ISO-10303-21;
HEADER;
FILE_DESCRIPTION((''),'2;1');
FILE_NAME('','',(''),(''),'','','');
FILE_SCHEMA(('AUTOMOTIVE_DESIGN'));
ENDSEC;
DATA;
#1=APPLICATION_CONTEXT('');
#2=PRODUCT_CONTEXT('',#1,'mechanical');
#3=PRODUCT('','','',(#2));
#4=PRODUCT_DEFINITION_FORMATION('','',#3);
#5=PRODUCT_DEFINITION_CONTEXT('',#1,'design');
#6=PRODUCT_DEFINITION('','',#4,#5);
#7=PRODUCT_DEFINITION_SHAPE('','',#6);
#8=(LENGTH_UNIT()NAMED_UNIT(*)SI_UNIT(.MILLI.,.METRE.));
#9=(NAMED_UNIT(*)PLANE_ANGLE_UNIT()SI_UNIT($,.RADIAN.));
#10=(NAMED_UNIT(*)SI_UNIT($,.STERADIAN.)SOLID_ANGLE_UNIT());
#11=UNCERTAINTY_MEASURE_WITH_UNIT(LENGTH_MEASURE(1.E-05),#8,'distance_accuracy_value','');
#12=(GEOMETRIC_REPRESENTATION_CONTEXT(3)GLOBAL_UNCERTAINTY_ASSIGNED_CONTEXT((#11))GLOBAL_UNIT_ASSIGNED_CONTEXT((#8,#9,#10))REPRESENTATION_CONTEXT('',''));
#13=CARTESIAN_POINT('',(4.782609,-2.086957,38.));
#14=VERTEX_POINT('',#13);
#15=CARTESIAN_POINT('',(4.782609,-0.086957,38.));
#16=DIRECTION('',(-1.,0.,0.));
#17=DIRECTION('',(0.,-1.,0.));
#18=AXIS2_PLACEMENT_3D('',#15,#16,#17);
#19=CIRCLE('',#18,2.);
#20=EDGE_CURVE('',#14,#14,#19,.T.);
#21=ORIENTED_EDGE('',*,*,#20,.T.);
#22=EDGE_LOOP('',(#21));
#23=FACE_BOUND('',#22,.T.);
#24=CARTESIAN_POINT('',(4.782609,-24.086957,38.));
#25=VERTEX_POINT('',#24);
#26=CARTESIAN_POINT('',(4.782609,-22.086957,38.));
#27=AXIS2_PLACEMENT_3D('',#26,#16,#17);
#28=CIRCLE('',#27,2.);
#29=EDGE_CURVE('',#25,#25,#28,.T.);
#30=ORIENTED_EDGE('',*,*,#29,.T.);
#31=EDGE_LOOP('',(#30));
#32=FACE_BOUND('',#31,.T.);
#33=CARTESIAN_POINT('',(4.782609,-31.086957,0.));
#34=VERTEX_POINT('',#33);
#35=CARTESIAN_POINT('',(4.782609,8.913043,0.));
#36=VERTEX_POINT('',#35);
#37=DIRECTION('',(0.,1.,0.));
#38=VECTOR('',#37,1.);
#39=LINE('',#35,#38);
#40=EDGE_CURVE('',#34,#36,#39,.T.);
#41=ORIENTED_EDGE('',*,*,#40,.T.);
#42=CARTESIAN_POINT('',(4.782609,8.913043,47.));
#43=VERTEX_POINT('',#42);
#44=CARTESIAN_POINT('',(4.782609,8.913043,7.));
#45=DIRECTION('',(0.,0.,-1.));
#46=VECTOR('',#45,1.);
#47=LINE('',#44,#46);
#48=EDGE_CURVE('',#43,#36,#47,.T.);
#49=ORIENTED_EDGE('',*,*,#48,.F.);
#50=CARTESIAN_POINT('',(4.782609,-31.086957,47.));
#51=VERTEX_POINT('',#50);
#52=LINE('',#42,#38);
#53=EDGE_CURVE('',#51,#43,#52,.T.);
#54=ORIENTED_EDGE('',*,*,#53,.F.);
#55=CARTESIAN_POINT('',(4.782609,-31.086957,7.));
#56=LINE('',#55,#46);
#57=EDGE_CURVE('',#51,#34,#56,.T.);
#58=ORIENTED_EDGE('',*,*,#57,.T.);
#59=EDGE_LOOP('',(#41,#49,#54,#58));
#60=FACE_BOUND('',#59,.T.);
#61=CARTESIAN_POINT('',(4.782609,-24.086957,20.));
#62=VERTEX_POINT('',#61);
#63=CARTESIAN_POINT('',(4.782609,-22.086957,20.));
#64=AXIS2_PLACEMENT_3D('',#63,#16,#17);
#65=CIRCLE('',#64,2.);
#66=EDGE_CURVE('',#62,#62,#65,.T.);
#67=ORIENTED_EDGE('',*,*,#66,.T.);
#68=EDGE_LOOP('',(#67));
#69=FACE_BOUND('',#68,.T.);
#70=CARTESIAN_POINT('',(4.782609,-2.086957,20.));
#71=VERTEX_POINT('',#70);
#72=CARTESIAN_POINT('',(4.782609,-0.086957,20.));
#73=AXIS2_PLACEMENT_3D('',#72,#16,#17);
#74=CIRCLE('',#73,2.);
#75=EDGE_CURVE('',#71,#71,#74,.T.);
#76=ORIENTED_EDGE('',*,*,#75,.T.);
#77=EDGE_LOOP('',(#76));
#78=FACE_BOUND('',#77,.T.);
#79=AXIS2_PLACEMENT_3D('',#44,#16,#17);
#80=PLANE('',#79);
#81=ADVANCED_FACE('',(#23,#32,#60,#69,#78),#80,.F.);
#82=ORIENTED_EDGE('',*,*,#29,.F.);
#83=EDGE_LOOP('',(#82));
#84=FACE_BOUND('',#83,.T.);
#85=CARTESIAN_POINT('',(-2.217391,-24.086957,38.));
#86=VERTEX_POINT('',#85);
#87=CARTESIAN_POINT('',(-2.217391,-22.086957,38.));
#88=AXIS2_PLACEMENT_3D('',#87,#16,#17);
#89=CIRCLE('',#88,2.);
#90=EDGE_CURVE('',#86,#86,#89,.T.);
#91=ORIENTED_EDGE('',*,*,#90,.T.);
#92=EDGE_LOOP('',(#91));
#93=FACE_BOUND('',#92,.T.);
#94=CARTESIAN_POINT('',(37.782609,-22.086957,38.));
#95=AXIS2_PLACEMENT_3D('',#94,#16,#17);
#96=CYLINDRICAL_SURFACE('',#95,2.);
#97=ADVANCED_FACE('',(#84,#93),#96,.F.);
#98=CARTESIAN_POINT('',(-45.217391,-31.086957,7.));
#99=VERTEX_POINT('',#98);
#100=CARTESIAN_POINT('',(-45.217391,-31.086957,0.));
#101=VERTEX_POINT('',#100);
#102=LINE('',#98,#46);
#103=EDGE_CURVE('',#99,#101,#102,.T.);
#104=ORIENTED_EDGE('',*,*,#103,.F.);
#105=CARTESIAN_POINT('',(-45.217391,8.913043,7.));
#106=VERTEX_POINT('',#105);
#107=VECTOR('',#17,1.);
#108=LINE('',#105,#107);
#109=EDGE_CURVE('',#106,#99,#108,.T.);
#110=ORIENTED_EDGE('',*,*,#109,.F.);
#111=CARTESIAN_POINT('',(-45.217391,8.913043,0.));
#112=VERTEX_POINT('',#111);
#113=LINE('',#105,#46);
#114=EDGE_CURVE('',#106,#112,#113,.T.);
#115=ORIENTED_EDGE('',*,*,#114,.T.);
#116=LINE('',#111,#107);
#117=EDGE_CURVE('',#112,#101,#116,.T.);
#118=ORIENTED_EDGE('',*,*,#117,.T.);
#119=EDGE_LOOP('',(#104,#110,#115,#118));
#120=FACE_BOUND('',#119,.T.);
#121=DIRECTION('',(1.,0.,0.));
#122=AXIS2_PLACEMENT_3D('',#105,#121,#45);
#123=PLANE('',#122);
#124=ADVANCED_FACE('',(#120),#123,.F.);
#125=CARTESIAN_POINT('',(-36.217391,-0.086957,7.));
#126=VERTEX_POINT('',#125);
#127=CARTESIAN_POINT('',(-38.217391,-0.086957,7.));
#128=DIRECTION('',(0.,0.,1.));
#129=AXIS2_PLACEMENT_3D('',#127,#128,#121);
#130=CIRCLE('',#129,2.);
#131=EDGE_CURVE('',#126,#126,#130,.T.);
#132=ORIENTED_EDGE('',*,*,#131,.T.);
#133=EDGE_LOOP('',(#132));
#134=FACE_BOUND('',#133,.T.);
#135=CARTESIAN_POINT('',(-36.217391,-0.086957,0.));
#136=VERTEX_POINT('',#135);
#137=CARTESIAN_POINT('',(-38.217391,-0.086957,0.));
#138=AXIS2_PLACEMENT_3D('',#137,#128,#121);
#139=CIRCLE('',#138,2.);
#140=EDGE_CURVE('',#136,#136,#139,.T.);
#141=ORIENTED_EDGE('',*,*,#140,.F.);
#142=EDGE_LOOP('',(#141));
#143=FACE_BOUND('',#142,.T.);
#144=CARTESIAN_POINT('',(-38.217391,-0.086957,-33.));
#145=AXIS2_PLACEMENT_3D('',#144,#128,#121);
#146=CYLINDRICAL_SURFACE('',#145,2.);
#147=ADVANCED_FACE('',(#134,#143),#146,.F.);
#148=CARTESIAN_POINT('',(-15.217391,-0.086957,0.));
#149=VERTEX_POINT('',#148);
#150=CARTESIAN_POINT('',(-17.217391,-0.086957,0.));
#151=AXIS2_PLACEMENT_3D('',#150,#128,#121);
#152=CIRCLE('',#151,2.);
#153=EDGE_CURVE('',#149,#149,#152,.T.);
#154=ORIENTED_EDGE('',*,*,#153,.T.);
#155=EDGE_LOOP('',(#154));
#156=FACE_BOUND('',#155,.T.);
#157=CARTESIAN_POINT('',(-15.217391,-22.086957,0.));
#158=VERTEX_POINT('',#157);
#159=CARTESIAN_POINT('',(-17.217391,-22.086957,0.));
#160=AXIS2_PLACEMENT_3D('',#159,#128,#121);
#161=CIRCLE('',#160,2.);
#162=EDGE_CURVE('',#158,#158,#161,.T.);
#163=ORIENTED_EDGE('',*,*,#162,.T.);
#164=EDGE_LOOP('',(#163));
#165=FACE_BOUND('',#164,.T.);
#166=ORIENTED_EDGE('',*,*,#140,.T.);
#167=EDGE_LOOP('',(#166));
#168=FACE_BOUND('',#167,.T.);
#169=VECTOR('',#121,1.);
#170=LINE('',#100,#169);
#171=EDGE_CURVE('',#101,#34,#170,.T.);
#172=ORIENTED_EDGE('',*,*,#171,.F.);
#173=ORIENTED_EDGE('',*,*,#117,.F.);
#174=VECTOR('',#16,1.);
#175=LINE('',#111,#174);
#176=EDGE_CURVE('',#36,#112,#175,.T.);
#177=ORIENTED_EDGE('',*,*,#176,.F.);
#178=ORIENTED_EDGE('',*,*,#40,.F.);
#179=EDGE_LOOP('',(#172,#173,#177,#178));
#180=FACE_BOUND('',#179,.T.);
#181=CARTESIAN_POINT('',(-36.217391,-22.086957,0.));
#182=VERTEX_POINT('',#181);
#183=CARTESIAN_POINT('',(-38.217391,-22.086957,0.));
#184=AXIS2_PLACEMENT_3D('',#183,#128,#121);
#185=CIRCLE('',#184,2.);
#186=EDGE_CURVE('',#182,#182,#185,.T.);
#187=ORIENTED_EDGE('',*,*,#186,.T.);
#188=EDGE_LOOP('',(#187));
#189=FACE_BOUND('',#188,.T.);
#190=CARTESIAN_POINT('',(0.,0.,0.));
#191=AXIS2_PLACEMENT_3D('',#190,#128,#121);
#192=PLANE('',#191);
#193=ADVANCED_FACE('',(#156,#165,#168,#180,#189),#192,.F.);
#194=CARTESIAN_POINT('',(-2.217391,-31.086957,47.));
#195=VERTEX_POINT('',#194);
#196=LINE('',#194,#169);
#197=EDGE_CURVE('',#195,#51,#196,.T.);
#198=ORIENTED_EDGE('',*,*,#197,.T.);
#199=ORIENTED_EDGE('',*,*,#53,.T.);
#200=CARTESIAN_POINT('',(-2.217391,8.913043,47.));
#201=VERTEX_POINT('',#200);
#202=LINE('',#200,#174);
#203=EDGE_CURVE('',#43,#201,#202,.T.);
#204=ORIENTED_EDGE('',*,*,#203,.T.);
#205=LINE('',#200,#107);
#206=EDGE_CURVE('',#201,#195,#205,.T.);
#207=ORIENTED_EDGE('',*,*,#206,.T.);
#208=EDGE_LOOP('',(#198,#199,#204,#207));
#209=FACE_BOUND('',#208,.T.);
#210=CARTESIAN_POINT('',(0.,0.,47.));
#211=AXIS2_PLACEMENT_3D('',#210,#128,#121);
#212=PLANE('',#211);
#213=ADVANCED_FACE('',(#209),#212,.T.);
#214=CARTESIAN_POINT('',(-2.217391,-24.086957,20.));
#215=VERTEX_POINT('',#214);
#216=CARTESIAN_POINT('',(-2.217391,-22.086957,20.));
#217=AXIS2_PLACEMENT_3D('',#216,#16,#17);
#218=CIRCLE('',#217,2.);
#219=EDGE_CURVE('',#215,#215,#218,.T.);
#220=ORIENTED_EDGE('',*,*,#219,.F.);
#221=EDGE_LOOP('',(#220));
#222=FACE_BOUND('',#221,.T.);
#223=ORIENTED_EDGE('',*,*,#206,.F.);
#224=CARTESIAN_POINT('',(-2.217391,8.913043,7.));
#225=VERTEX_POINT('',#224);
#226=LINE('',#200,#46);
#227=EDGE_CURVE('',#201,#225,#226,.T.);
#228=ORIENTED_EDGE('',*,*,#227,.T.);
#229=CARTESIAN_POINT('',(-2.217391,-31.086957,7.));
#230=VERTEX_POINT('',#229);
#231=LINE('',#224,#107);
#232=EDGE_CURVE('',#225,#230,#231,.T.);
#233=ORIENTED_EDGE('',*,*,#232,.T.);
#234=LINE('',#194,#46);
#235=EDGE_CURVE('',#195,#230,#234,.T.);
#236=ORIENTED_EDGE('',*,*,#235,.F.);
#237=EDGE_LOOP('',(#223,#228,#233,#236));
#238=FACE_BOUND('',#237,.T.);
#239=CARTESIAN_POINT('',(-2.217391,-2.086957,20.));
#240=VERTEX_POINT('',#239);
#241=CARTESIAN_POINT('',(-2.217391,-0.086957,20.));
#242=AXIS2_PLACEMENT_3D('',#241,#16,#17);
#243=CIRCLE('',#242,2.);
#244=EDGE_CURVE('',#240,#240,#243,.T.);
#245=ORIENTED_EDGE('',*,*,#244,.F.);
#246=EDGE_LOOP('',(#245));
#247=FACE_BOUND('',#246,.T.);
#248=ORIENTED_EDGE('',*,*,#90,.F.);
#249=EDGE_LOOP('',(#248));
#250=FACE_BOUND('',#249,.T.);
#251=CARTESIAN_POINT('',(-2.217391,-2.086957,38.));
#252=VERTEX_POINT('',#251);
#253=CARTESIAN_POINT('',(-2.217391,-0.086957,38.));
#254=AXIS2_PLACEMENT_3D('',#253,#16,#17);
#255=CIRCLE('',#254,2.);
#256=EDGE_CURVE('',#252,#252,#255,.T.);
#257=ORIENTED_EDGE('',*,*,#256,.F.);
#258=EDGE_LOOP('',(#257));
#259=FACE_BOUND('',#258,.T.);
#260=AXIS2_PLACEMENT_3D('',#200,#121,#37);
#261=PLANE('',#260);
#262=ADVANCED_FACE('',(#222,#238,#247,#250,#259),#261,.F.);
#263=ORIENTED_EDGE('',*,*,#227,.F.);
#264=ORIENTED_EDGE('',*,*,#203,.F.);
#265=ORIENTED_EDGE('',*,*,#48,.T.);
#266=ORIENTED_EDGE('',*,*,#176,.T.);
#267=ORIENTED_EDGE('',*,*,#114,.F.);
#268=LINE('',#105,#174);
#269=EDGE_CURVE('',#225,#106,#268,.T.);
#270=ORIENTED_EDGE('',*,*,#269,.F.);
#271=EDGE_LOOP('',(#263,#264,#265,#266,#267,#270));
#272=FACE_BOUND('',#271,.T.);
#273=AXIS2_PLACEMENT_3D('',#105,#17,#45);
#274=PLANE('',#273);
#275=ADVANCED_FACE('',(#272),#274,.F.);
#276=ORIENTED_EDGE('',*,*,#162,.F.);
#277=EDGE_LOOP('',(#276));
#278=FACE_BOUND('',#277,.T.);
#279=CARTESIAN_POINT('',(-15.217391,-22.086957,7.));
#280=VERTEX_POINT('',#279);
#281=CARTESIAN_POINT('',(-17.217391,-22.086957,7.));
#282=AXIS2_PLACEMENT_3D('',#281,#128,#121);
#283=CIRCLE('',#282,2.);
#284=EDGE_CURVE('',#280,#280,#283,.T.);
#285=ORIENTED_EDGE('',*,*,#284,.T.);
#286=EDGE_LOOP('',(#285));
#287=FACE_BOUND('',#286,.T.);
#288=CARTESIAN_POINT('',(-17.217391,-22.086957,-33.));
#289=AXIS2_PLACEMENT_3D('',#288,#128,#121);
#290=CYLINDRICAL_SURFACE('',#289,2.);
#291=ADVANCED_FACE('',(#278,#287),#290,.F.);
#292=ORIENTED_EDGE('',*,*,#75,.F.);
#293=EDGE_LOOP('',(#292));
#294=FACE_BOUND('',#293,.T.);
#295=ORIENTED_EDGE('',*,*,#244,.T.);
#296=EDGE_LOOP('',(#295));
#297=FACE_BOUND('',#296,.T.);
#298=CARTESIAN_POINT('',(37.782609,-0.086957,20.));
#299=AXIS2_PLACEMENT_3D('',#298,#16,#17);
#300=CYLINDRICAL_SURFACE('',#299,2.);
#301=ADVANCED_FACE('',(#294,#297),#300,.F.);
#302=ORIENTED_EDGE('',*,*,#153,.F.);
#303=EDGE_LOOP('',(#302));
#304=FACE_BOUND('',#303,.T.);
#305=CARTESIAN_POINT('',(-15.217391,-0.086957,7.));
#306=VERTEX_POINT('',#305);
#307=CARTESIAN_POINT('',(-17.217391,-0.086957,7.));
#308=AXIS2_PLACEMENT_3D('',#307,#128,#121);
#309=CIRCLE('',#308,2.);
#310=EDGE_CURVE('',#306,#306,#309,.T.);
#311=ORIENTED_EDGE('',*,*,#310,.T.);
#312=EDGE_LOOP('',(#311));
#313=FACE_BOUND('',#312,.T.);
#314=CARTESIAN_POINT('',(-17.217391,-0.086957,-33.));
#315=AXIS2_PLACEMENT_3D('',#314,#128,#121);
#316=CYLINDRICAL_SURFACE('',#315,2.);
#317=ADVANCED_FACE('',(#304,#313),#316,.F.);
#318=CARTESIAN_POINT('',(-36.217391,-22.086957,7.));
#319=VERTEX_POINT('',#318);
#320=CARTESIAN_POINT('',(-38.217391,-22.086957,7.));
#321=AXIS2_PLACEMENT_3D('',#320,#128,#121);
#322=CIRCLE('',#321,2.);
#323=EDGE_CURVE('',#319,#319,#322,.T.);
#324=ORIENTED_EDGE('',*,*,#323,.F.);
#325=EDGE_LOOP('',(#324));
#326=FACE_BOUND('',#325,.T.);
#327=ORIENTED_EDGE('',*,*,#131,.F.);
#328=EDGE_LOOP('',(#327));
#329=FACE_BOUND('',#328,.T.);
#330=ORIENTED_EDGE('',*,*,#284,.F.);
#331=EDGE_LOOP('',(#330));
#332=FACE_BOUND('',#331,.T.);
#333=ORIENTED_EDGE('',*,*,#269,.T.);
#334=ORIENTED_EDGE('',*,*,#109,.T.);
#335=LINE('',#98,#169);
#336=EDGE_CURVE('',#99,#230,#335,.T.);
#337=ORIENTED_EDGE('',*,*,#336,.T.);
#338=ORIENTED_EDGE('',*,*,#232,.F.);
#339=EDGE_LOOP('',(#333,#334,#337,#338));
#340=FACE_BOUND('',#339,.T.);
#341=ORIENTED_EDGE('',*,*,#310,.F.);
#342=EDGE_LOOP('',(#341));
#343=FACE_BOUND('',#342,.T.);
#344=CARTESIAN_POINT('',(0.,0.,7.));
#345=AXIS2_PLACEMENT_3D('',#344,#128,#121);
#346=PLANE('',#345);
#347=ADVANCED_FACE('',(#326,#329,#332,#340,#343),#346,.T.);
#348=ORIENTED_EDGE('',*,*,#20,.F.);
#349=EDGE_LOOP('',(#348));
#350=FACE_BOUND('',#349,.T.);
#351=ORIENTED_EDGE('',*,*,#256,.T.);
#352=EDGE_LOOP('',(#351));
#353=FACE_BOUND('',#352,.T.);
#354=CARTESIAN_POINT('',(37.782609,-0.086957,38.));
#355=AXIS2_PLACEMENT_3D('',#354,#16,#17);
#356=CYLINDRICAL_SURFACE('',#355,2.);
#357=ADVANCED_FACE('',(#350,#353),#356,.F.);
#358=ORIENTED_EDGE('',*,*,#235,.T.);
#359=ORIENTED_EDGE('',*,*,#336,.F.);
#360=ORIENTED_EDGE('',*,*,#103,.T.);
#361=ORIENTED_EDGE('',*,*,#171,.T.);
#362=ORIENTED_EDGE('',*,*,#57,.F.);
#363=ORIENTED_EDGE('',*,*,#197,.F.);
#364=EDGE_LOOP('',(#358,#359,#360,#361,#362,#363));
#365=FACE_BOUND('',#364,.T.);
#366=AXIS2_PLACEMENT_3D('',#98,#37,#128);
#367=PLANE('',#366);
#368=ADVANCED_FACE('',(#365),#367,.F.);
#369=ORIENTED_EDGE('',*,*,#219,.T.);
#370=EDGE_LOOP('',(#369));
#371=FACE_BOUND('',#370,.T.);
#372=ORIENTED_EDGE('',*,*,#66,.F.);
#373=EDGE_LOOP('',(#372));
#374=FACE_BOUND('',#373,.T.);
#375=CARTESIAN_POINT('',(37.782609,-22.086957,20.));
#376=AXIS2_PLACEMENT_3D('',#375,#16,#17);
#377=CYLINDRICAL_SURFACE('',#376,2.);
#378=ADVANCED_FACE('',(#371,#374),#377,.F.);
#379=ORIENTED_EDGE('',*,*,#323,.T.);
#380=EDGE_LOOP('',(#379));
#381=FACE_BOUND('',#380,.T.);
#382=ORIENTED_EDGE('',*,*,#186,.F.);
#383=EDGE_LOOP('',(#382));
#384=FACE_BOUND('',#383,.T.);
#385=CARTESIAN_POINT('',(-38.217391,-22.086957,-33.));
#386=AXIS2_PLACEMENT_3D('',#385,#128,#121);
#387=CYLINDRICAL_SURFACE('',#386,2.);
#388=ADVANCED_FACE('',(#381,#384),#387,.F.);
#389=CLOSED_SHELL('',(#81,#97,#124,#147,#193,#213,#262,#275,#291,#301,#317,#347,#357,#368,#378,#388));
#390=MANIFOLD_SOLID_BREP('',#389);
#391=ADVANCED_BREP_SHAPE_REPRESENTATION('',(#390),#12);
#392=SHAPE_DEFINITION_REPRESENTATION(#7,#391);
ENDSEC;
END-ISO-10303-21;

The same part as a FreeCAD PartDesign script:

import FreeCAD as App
import Part
import Sketcher

V = App.Vector


def add_polygon(sketch, points):
    """Adds a closed chain of lines whose ends are joined by coincident constraints."""
    first, n = sketch.GeometryCount, len(points)
    for a, b in zip(points, points[1:] + points[:1]):
        sketch.addGeometry(Part.LineSegment(App.Vector(*a, 0), App.Vector(*b, 0)), False)
    for i in range(n):
        sketch.addConstraint(Sketcher.Constraint("Coincident", first + i, 2, first + (i + 1) % n, 1))

doc = App.newDocument("Part")
body = doc.addObject("PartDesign::Body", "Body")

# Sketch on XY plane
sketch1 = doc.addObject("Sketcher::SketchObject", "Sketch")
body.addObject(sketch1)
sketch1.AttachmentSupport = (doc.XY_Plane, [""])
sketch1.MapMode = "FlatFace"
add_polygon(sketch1, [(-45.217391, 8.913043), (-45.217391, -31.086957), (4.782609, -31.086957), (4.782609, 8.913043)])  # lines 0-3
sketch1.addConstraint(Sketcher.Constraint("Vertical", 0))
sketch1.addConstraint(Sketcher.Constraint("Horizontal", 1))
sketch1.addConstraint(Sketcher.Constraint("Vertical", 2))
sketch1.addConstraint(Sketcher.Constraint("Horizontal", 3))
sketch1.addConstraint(Sketcher.Constraint("DistanceX", 1, 1, 1, 2, 50.0))
sketch1.addConstraint(Sketcher.Constraint("DistanceY", 0, 2, 0, 1, 40.0))
sketch1.addConstraint(Sketcher.Constraint("DistanceX", 0, 2, -1, 1, 45.217391))
sketch1.addConstraint(Sketcher.Constraint("DistanceY", 0, 2, -1, 1, 31.086957))
pad1 = doc.addObject("PartDesign::Pad", "Pad")
body.addObject(pad1)
pad1.Profile = sketch1
pad1.Length = 7

# Sketch on XY plane
sketch2 = doc.addObject("Sketcher::SketchObject", "Sketch001")
body.addObject(sketch2)
sketch2.AttachmentSupport = (doc.XY_Plane, [""])
sketch2.MapMode = "FlatFace"
sketch2.AttachmentOffset = App.Placement(V(0, 0, 7), App.Rotation())
add_polygon(sketch2, [(-2.217391, 8.913043), (-2.217391, -31.086957), (4.782609, -31.086957), (4.782609, 8.913043)])  # lines 0-3
sketch2.addConstraint(Sketcher.Constraint("Vertical", 0))
sketch2.addConstraint(Sketcher.Constraint("Horizontal", 1))
sketch2.addConstraint(Sketcher.Constraint("Vertical", 2))
sketch2.addConstraint(Sketcher.Constraint("Horizontal", 3))
sketch2.addConstraint(Sketcher.Constraint("DistanceX", 1, 1, 1, 2, 7.0))
sketch2.addConstraint(Sketcher.Constraint("DistanceY", 0, 2, 0, 1, 40.0))
sketch2.addConstraint(Sketcher.Constraint("DistanceX", 0, 2, -1, 1, 2.217391))
sketch2.addConstraint(Sketcher.Constraint("DistanceY", 0, 2, -1, 1, 31.086957))
pad2 = doc.addObject("PartDesign::Pad", "Pad001")
body.addObject(pad2)
pad2.Profile = sketch2
pad2.Length = 40

# Sketch on XY plane
sketch3 = doc.addObject("Sketcher::SketchObject", "Sketch002")
body.addObject(sketch3)
sketch3.AttachmentSupport = (doc.XY_Plane, [""])
sketch3.MapMode = "FlatFace"
sketch3.AttachmentOffset = App.Placement(V(0, 0, 7), App.Rotation())
sketch3.addGeometry(Part.Circle(V(-38.217391, -0.086957, 0), V(0, 0, 1), 2), False)
sketch3.addGeometry(Part.Circle(V(-38.217391, -22.086957, 0), V(0, 0, 1), 2), False)
sketch3.addGeometry(Part.Circle(V(-17.217391, -0.086957, 0), V(0, 0, 1), 2), False)
sketch3.addGeometry(Part.Circle(V(-17.217391, -22.086957, 0), V(0, 0, 1), 2), False)
sketch3.addConstraint(Sketcher.Constraint("Equal", 0, 1))
sketch3.addConstraint(Sketcher.Constraint("Equal", 1, 2))
sketch3.addConstraint(Sketcher.Constraint("Equal", 2, 3))
sketch3.addConstraint(Sketcher.Constraint("Horizontal", 0, 3, 2, 3))
sketch3.addConstraint(Sketcher.Constraint("Horizontal", 1, 3, 3, 3))
sketch3.addConstraint(Sketcher.Constraint("Vertical", 0, 3, 1, 3))
sketch3.addConstraint(Sketcher.Constraint("Vertical", 2, 3, 3, 3))
sketch3.addConstraint(Sketcher.Constraint("Diameter", 0, 4.0))
sketch3.addConstraint(Sketcher.Constraint("DistanceY", 1, 3, 0, 3, 22.0))
sketch3.addConstraint(Sketcher.Constraint("DistanceX", 0, 3, 2, 3, 21.0))
sketch3.addConstraint(Sketcher.Constraint("DistanceX", 0, 3, -1, 1, 38.217391))
sketch3.addConstraint(Sketcher.Constraint("DistanceY", 0, 3, -1, 1, 0.086957))
pocket1 = doc.addObject("PartDesign::Pocket", "Pocket")
body.addObject(pocket1)
pocket1.Profile = sketch3
pocket1.Length = 40

# Sketch on YZ plane
sketch4 = doc.addObject("Sketcher::SketchObject", "Sketch003")
body.addObject(sketch4)
sketch4.AttachmentSupport = (doc.YZ_Plane, [""])
sketch4.MapMode = "FlatFace"
sketch4.AttachmentOffset = App.Placement(V(0, 0, -2.217391), App.Rotation())
sketch4.addGeometry(Part.Circle(V(-0.086957, 38, 0), V(0, 0, 1), 2), False)
sketch4.addGeometry(Part.Circle(V(-22.086957, 38, 0), V(0, 0, 1), 2), False)
sketch4.addGeometry(Part.Circle(V(-0.086957, 20, 0), V(0, 0, 1), 2), False)
sketch4.addGeometry(Part.Circle(V(-22.086957, 20, 0), V(0, 0, 1), 2), False)
sketch4.addConstraint(Sketcher.Constraint("Equal", 0, 1))
sketch4.addConstraint(Sketcher.Constraint("Equal", 1, 2))
sketch4.addConstraint(Sketcher.Constraint("Equal", 2, 3))
sketch4.addConstraint(Sketcher.Constraint("Horizontal", 0, 3, 1, 3))
sketch4.addConstraint(Sketcher.Constraint("Horizontal", 2, 3, 3, 3))
sketch4.addConstraint(Sketcher.Constraint("Vertical", 0, 3, 2, 3))
sketch4.addConstraint(Sketcher.Constraint("Vertical", 1, 3, 3, 3))
sketch4.addConstraint(Sketcher.Constraint("Diameter", 0, 4.0))
sketch4.addConstraint(Sketcher.Constraint("DistanceY", -1, 1, 0, 3, 38.0))
sketch4.addConstraint(Sketcher.Constraint("DistanceY", -1, 1, 2, 3, 20.0))
sketch4.addConstraint(Sketcher.Constraint("DistanceX", 1, 3, 0, 3, 22.0))
sketch4.addConstraint(Sketcher.Constraint("DistanceX", 0, 3, -1, 1, 0.086957))
pocket2 = doc.addObject("PartDesign::Pocket", "Pocket001")
body.addObject(pocket2)
pocket2.Profile = sketch4
pocket2.Length = 40
pocket2.Reversed = True

doc.recompute()
